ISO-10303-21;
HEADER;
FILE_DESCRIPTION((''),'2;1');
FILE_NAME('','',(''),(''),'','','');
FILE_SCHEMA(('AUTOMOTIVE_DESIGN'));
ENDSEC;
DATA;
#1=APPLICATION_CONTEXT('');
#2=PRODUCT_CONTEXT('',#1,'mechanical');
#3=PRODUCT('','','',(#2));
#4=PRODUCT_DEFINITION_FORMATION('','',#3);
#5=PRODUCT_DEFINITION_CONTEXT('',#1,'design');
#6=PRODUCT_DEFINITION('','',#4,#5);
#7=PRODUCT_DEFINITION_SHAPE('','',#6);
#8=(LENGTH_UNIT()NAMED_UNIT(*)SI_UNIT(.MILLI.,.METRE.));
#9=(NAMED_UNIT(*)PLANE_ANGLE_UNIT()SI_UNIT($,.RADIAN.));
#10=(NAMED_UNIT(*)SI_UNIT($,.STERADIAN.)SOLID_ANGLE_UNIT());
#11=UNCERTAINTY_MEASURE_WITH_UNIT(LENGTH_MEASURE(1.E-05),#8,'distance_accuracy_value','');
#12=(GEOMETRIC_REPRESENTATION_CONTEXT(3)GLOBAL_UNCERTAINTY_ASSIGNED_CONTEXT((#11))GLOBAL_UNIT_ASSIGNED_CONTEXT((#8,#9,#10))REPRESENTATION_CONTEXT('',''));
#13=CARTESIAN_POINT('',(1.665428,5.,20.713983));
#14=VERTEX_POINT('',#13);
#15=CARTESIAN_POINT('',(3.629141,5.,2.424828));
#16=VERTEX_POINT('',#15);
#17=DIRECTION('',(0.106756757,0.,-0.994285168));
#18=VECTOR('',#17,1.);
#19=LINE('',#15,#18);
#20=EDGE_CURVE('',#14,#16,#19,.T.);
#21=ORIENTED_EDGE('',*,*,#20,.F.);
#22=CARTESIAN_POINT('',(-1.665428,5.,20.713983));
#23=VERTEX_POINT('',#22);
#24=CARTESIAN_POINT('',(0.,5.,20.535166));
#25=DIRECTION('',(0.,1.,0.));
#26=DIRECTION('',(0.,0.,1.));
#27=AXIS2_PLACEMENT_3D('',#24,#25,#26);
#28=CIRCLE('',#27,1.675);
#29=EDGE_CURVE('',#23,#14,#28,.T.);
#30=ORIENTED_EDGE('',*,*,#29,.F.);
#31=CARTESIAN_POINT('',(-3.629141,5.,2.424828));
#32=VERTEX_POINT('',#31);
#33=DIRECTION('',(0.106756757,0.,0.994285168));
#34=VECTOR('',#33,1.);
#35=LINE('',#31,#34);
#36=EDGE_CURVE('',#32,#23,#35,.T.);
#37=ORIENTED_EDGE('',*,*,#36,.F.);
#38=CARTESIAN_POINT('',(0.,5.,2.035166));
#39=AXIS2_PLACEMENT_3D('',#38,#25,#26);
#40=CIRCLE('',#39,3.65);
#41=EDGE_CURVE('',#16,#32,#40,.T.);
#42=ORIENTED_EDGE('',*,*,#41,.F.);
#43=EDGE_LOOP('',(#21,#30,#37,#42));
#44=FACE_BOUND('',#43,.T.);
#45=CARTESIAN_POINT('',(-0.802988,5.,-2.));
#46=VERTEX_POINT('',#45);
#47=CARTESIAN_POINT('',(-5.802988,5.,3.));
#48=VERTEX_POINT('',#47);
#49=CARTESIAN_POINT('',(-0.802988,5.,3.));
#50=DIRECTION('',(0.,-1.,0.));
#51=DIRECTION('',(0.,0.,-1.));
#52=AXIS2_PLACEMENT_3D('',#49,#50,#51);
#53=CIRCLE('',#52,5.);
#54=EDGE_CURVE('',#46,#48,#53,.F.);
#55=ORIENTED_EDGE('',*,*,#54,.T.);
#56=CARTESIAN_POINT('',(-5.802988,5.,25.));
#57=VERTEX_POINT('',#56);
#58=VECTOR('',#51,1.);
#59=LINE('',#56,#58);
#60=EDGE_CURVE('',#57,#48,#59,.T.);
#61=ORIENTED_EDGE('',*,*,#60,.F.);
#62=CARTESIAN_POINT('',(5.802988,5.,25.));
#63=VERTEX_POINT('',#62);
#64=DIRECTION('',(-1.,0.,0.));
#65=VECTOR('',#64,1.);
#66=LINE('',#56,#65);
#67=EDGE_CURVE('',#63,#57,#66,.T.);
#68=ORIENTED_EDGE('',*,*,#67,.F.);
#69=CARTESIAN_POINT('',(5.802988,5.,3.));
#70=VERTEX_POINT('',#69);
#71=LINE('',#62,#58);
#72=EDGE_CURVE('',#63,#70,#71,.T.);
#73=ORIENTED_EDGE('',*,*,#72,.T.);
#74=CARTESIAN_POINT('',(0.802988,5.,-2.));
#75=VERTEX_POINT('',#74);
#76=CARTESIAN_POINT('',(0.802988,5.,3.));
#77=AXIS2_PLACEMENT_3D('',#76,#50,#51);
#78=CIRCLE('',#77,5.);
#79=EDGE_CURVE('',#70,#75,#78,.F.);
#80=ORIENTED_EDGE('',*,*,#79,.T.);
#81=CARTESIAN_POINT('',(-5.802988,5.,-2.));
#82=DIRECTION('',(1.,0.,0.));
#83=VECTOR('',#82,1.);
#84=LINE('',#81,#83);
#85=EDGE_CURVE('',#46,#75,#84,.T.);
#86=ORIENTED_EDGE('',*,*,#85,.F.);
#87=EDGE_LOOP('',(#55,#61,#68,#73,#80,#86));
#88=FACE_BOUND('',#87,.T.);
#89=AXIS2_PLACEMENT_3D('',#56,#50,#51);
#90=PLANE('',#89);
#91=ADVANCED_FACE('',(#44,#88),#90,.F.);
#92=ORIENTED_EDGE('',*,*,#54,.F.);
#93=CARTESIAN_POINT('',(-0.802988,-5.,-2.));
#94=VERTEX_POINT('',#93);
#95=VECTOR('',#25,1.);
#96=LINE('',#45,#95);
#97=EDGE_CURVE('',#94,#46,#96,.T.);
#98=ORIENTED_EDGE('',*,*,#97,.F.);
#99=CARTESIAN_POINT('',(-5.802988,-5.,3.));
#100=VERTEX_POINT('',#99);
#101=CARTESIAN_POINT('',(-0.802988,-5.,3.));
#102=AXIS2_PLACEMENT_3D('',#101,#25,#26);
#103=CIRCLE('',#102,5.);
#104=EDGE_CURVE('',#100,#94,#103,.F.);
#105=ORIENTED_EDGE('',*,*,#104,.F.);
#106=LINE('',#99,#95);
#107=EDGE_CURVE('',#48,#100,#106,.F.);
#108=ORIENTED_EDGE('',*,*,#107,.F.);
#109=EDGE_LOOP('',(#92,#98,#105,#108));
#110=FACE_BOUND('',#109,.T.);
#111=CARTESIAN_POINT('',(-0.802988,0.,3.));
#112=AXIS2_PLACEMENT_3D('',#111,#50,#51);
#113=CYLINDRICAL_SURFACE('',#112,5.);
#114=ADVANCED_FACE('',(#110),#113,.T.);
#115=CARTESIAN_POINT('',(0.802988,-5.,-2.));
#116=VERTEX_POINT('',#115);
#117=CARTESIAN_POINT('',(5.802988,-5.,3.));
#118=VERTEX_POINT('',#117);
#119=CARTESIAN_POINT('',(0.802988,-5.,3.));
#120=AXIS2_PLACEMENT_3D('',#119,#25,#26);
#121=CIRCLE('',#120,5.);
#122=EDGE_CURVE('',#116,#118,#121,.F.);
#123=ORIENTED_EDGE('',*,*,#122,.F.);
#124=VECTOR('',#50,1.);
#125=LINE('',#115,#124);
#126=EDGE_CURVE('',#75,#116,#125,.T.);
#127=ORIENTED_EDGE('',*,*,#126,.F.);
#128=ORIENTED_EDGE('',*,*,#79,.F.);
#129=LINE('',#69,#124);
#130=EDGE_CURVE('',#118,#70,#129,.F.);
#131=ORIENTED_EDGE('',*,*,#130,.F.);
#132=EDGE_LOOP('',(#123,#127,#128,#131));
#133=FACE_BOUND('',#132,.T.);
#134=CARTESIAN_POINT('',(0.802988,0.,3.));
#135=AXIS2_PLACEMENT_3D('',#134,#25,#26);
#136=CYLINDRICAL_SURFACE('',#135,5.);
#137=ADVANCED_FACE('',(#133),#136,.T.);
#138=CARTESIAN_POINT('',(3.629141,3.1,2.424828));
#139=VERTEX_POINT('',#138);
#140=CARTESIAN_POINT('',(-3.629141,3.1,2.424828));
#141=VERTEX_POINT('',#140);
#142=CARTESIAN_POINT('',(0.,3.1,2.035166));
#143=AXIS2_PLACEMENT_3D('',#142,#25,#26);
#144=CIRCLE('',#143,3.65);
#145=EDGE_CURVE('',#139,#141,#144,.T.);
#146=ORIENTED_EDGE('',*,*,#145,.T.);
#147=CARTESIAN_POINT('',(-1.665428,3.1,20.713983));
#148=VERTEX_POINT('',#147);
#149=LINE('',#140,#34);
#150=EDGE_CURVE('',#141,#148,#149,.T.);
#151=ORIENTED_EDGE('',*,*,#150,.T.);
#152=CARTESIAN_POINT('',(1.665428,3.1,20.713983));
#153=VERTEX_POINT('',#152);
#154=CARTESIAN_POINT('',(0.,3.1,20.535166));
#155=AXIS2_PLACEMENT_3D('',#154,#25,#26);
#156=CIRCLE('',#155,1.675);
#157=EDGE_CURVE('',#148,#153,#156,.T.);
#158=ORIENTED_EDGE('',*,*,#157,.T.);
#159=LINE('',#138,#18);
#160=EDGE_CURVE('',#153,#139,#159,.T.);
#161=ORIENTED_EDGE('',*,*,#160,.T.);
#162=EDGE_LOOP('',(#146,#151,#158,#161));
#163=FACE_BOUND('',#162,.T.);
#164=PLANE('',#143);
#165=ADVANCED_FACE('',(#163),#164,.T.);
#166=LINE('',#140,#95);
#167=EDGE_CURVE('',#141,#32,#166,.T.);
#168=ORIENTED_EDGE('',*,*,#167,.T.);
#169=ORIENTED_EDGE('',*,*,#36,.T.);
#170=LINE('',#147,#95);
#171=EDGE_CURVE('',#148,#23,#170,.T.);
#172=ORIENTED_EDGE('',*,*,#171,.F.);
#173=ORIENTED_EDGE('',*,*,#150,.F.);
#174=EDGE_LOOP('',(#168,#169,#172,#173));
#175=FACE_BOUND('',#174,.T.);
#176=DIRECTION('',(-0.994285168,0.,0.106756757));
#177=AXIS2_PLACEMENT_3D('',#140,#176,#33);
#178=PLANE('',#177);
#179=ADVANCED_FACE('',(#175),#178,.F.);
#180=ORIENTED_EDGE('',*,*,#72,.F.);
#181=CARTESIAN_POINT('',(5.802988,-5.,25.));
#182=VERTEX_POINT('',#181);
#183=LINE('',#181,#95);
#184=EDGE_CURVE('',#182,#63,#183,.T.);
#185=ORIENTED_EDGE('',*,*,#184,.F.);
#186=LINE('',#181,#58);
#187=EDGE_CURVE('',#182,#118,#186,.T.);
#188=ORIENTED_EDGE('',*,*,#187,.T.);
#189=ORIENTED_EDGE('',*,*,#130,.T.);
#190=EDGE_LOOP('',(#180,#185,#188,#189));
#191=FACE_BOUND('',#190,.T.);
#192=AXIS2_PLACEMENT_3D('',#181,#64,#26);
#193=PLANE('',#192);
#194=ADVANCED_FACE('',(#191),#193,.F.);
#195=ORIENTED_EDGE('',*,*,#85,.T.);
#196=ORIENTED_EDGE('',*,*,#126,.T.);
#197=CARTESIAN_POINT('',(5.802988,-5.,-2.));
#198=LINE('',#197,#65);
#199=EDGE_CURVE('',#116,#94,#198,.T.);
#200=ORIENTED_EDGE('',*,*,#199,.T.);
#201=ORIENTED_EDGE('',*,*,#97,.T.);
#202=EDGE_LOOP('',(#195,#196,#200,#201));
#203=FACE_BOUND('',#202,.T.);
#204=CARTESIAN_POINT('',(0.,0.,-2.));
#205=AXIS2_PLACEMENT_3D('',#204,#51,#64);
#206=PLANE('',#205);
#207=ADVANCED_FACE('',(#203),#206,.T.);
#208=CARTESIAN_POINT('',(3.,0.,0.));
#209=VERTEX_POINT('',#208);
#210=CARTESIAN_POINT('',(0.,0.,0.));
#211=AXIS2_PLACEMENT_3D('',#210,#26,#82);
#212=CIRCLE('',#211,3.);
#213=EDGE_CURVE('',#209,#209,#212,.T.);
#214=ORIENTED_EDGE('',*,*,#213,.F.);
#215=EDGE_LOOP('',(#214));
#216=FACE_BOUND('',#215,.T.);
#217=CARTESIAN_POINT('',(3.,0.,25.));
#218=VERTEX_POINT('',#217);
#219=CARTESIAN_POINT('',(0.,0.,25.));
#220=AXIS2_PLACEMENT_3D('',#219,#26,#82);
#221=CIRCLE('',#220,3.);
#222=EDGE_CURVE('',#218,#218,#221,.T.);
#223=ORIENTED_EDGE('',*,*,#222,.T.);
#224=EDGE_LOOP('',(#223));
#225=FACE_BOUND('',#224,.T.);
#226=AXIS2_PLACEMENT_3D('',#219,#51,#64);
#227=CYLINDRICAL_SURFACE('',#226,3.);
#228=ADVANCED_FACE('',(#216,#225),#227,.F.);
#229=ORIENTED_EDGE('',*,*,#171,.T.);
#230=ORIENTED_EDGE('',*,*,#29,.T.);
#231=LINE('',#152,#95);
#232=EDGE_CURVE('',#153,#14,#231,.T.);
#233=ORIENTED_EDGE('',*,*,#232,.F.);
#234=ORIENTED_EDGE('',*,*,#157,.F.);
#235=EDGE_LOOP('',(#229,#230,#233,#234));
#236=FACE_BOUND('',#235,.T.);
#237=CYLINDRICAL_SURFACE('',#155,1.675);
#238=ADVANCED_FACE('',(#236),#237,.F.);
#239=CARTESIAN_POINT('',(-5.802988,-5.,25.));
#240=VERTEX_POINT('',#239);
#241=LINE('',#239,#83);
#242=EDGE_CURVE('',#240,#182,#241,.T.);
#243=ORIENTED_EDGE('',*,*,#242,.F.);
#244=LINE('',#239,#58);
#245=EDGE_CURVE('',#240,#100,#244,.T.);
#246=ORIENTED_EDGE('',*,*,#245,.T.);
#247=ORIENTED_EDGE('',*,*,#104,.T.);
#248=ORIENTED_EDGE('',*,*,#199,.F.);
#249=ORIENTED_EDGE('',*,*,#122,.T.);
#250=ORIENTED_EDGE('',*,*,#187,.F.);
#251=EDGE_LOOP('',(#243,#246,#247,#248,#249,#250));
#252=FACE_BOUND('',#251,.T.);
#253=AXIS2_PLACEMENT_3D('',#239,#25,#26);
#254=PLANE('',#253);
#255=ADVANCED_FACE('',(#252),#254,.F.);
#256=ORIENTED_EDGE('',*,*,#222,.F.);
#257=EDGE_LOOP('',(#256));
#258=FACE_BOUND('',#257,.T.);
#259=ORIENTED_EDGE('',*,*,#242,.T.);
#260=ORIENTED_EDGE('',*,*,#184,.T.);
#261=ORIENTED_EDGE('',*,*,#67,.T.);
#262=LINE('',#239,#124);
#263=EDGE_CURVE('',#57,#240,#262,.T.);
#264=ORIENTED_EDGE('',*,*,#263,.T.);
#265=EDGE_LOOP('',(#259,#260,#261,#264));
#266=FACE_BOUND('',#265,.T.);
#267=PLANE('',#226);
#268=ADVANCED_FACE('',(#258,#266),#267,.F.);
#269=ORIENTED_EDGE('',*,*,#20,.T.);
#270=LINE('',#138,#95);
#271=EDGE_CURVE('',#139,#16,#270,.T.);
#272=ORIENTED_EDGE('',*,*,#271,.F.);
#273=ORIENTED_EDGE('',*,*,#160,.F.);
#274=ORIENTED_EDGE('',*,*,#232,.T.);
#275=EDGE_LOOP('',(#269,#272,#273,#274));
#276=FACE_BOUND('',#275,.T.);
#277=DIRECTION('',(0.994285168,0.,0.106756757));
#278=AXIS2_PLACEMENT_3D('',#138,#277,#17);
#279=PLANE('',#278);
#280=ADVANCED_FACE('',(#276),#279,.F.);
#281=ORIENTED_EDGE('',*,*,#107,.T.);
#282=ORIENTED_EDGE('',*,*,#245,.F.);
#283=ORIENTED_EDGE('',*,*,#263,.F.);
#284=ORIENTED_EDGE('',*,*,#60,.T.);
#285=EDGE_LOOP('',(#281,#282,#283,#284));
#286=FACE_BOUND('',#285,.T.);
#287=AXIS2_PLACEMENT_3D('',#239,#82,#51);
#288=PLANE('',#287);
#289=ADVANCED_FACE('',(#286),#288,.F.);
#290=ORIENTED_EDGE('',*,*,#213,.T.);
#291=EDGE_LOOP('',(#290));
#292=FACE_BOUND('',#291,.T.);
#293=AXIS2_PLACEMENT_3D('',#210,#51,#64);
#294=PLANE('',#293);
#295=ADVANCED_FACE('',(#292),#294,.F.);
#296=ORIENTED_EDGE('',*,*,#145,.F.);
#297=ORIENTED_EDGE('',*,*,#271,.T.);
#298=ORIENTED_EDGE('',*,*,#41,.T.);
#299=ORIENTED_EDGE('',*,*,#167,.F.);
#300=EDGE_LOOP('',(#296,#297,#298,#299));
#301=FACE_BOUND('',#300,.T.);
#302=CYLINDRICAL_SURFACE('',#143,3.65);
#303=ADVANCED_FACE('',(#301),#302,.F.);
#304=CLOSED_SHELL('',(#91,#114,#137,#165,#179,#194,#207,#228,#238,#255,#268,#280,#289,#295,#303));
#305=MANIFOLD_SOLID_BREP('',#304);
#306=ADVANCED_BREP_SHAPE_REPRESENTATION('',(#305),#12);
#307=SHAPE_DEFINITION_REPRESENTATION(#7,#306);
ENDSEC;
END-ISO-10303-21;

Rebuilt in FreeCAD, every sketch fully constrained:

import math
import FreeCAD as App
import Part
import Sketcher


def edges_at(feature, points):
    """Names of the edges that pass closest to the given points."""
    edges = feature.Shape.Edges
    near = lambda p: min(range(len(edges)), key=lambda i: edges[i].distToShape(Part.Vertex(*p))[0])
    return sorted({f"Edge{near(p) + 1}" for p in points})


def add_polygon(sketch, points):
    """Adds a closed chain of lines whose ends are joined by coincident constraints."""
    first, n = sketch.GeometryCount, len(points)
    for a, b in zip(points, points[1:] + points[:1]):
        sketch.addGeometry(Part.LineSegment(App.Vector(*a, 0), App.Vector(*b, 0)), False)
    for i in range(n):
        sketch.addConstraint(Sketcher.Constraint("Coincident", first + i, 2, first + (i + 1) % n, 1))

doc = App.newDocument("Part")
body = doc.addObject("PartDesign::Body", "Body")

# Sketch on XY plane
sketch1 = doc.addObject("Sketcher::SketchObject", "Sketch")
body.addObject(sketch1)
sketch1.AttachmentSupport = (doc.XY_Plane, [""])
sketch1.MapMode = "FlatFace"
add_polygon(sketch1, [(-5.8, 5), (-5.8, -5), (5.8, -5), (5.8, 5)])  # lines 0-3
sketch1.addGeometry(Part.Circle(App.Vector(0, 0, 0), App.Vector(0, 0, 1), 3), False)  # 4
sketch1.addConstraint([
    Sketcher.Constraint("Vertical", 0),
    Sketcher.Constraint("Horizontal", 1),
    Sketcher.Constraint("Vertical", 2),
    Sketcher.Constraint("Horizontal", 3),
    Sketcher.Constraint("Coincident", 4, 3, -1, 1),
    Sketcher.Constraint("Symmetric", 0, 2, 2, 2, -1, 1),
    Sketcher.Constraint("Diameter", 4, 6.0),
    Sketcher.Constraint("DistanceY", 0, 2, 0, 1, 10.0),
    Sketcher.Constraint("DistanceX", 1, 1, 1, 2, 11.605976),
])
pad1 = doc.addObject("PartDesign::Pad", "Pad")
body.addObject(pad1)
pad1.Profile = sketch1
pad1.Length = 25

# Sketch on XY plane
sketch2 = doc.addObject("Sketcher::SketchObject", "Sketch001")
body.addObject(sketch2)
sketch2.AttachmentSupport = (doc.XY_Plane, [""])
sketch2.MapMode = "FlatFace"
add_polygon(sketch2, [(6, 5), (6, -5), (-6, -5), (-6, 5)])  # lines 0-3
sketch2.addConstraint([
    Sketcher.Constraint("Vertical", 0),
    Sketcher.Constraint("Horizontal", 1),
    Sketcher.Constraint("Vertical", 2),
    Sketcher.Constraint("Horizontal", 3),
    Sketcher.Constraint("Symmetric", 0, 2, 2, 2, -1, 1),
    Sketcher.Constraint("DistanceY", 0, 2, 0, 1, 10.0),
    Sketcher.Constraint("DistanceX", 1, 2, 1, 1, 11.605976),
])
pad2 = doc.addObject("PartDesign::Pad", "Pad001")
body.addObject(pad2)
pad2.Profile = sketch2
pad2.Length = 2
pad2.Reversed = True
doc.recompute()

fillet = doc.addObject("PartDesign::Fillet", "Fillet")
body.addObject(fillet)
fillet.Base = (pad2, edges_at(pad2, [(5.803, 0, -2), (-5.803, 0, -2)]))
fillet.Radius = 5

# Sketch on XZ plane
sketch3 = doc.addObject("Sketcher::SketchObject", "Sketch002")
body.addObject(sketch3)
sketch3.AttachmentSupport = (doc.XZ_Plane, [""])
sketch3.MapMode = "FlatFace"
sketch3.AttachmentOffset = App.Placement(App.Vector(0, 0, -5), App.Rotation())
sketch3.addGeometry([
    Part.LineSegment(App.Vector(1.7, 20.7, 0), App.Vector(3.6, 2.4, 0)),
    Part.ArcOfCircle(Part.Circle(App.Vector(0, 2, 0), App.Vector(0, 0, 1), 3.6), math.radians(174), math.radians(366)),
    Part.LineSegment(App.Vector(-3.6, 2.4, 0), App.Vector(-1.7, 20.7, 0)),
    Part.ArcOfCircle(Part.Circle(App.Vector(0, 20.5, 0), App.Vector(0, 0, 1), 1.7), math.radians(6), math.radians(174)),
], False)
sketch3.addConstraint([
    Sketcher.Constraint("Tangent", 0, 2, 1, 2),
    Sketcher.Constraint("Tangent", 1, 1, 2, 1),
    Sketcher.Constraint("Tangent", 2, 2, 3, 2),
    Sketcher.Constraint("Tangent", 3, 1, 0, 1),
    Sketcher.Constraint("Symmetric", 0, 2, 1, 1, -2),
    Sketcher.Constraint("Radius", 1, 3.65),
    Sketcher.Constraint("Radius", 3, 1.675),
    Sketcher.Constraint("DistanceY", 1, 3, 3, 3, 18.5),
    Sketcher.Constraint("DistanceY", -1, 1, 1, 3, 2.035166),
])
pocket1 = doc.addObject("PartDesign::Pocket", "Pocket")
body.addObject(pocket1)
pocket1.Profile = sketch3
pocket1.Length = 1.9
pocket1.Reversed = True

doc.recompute()
